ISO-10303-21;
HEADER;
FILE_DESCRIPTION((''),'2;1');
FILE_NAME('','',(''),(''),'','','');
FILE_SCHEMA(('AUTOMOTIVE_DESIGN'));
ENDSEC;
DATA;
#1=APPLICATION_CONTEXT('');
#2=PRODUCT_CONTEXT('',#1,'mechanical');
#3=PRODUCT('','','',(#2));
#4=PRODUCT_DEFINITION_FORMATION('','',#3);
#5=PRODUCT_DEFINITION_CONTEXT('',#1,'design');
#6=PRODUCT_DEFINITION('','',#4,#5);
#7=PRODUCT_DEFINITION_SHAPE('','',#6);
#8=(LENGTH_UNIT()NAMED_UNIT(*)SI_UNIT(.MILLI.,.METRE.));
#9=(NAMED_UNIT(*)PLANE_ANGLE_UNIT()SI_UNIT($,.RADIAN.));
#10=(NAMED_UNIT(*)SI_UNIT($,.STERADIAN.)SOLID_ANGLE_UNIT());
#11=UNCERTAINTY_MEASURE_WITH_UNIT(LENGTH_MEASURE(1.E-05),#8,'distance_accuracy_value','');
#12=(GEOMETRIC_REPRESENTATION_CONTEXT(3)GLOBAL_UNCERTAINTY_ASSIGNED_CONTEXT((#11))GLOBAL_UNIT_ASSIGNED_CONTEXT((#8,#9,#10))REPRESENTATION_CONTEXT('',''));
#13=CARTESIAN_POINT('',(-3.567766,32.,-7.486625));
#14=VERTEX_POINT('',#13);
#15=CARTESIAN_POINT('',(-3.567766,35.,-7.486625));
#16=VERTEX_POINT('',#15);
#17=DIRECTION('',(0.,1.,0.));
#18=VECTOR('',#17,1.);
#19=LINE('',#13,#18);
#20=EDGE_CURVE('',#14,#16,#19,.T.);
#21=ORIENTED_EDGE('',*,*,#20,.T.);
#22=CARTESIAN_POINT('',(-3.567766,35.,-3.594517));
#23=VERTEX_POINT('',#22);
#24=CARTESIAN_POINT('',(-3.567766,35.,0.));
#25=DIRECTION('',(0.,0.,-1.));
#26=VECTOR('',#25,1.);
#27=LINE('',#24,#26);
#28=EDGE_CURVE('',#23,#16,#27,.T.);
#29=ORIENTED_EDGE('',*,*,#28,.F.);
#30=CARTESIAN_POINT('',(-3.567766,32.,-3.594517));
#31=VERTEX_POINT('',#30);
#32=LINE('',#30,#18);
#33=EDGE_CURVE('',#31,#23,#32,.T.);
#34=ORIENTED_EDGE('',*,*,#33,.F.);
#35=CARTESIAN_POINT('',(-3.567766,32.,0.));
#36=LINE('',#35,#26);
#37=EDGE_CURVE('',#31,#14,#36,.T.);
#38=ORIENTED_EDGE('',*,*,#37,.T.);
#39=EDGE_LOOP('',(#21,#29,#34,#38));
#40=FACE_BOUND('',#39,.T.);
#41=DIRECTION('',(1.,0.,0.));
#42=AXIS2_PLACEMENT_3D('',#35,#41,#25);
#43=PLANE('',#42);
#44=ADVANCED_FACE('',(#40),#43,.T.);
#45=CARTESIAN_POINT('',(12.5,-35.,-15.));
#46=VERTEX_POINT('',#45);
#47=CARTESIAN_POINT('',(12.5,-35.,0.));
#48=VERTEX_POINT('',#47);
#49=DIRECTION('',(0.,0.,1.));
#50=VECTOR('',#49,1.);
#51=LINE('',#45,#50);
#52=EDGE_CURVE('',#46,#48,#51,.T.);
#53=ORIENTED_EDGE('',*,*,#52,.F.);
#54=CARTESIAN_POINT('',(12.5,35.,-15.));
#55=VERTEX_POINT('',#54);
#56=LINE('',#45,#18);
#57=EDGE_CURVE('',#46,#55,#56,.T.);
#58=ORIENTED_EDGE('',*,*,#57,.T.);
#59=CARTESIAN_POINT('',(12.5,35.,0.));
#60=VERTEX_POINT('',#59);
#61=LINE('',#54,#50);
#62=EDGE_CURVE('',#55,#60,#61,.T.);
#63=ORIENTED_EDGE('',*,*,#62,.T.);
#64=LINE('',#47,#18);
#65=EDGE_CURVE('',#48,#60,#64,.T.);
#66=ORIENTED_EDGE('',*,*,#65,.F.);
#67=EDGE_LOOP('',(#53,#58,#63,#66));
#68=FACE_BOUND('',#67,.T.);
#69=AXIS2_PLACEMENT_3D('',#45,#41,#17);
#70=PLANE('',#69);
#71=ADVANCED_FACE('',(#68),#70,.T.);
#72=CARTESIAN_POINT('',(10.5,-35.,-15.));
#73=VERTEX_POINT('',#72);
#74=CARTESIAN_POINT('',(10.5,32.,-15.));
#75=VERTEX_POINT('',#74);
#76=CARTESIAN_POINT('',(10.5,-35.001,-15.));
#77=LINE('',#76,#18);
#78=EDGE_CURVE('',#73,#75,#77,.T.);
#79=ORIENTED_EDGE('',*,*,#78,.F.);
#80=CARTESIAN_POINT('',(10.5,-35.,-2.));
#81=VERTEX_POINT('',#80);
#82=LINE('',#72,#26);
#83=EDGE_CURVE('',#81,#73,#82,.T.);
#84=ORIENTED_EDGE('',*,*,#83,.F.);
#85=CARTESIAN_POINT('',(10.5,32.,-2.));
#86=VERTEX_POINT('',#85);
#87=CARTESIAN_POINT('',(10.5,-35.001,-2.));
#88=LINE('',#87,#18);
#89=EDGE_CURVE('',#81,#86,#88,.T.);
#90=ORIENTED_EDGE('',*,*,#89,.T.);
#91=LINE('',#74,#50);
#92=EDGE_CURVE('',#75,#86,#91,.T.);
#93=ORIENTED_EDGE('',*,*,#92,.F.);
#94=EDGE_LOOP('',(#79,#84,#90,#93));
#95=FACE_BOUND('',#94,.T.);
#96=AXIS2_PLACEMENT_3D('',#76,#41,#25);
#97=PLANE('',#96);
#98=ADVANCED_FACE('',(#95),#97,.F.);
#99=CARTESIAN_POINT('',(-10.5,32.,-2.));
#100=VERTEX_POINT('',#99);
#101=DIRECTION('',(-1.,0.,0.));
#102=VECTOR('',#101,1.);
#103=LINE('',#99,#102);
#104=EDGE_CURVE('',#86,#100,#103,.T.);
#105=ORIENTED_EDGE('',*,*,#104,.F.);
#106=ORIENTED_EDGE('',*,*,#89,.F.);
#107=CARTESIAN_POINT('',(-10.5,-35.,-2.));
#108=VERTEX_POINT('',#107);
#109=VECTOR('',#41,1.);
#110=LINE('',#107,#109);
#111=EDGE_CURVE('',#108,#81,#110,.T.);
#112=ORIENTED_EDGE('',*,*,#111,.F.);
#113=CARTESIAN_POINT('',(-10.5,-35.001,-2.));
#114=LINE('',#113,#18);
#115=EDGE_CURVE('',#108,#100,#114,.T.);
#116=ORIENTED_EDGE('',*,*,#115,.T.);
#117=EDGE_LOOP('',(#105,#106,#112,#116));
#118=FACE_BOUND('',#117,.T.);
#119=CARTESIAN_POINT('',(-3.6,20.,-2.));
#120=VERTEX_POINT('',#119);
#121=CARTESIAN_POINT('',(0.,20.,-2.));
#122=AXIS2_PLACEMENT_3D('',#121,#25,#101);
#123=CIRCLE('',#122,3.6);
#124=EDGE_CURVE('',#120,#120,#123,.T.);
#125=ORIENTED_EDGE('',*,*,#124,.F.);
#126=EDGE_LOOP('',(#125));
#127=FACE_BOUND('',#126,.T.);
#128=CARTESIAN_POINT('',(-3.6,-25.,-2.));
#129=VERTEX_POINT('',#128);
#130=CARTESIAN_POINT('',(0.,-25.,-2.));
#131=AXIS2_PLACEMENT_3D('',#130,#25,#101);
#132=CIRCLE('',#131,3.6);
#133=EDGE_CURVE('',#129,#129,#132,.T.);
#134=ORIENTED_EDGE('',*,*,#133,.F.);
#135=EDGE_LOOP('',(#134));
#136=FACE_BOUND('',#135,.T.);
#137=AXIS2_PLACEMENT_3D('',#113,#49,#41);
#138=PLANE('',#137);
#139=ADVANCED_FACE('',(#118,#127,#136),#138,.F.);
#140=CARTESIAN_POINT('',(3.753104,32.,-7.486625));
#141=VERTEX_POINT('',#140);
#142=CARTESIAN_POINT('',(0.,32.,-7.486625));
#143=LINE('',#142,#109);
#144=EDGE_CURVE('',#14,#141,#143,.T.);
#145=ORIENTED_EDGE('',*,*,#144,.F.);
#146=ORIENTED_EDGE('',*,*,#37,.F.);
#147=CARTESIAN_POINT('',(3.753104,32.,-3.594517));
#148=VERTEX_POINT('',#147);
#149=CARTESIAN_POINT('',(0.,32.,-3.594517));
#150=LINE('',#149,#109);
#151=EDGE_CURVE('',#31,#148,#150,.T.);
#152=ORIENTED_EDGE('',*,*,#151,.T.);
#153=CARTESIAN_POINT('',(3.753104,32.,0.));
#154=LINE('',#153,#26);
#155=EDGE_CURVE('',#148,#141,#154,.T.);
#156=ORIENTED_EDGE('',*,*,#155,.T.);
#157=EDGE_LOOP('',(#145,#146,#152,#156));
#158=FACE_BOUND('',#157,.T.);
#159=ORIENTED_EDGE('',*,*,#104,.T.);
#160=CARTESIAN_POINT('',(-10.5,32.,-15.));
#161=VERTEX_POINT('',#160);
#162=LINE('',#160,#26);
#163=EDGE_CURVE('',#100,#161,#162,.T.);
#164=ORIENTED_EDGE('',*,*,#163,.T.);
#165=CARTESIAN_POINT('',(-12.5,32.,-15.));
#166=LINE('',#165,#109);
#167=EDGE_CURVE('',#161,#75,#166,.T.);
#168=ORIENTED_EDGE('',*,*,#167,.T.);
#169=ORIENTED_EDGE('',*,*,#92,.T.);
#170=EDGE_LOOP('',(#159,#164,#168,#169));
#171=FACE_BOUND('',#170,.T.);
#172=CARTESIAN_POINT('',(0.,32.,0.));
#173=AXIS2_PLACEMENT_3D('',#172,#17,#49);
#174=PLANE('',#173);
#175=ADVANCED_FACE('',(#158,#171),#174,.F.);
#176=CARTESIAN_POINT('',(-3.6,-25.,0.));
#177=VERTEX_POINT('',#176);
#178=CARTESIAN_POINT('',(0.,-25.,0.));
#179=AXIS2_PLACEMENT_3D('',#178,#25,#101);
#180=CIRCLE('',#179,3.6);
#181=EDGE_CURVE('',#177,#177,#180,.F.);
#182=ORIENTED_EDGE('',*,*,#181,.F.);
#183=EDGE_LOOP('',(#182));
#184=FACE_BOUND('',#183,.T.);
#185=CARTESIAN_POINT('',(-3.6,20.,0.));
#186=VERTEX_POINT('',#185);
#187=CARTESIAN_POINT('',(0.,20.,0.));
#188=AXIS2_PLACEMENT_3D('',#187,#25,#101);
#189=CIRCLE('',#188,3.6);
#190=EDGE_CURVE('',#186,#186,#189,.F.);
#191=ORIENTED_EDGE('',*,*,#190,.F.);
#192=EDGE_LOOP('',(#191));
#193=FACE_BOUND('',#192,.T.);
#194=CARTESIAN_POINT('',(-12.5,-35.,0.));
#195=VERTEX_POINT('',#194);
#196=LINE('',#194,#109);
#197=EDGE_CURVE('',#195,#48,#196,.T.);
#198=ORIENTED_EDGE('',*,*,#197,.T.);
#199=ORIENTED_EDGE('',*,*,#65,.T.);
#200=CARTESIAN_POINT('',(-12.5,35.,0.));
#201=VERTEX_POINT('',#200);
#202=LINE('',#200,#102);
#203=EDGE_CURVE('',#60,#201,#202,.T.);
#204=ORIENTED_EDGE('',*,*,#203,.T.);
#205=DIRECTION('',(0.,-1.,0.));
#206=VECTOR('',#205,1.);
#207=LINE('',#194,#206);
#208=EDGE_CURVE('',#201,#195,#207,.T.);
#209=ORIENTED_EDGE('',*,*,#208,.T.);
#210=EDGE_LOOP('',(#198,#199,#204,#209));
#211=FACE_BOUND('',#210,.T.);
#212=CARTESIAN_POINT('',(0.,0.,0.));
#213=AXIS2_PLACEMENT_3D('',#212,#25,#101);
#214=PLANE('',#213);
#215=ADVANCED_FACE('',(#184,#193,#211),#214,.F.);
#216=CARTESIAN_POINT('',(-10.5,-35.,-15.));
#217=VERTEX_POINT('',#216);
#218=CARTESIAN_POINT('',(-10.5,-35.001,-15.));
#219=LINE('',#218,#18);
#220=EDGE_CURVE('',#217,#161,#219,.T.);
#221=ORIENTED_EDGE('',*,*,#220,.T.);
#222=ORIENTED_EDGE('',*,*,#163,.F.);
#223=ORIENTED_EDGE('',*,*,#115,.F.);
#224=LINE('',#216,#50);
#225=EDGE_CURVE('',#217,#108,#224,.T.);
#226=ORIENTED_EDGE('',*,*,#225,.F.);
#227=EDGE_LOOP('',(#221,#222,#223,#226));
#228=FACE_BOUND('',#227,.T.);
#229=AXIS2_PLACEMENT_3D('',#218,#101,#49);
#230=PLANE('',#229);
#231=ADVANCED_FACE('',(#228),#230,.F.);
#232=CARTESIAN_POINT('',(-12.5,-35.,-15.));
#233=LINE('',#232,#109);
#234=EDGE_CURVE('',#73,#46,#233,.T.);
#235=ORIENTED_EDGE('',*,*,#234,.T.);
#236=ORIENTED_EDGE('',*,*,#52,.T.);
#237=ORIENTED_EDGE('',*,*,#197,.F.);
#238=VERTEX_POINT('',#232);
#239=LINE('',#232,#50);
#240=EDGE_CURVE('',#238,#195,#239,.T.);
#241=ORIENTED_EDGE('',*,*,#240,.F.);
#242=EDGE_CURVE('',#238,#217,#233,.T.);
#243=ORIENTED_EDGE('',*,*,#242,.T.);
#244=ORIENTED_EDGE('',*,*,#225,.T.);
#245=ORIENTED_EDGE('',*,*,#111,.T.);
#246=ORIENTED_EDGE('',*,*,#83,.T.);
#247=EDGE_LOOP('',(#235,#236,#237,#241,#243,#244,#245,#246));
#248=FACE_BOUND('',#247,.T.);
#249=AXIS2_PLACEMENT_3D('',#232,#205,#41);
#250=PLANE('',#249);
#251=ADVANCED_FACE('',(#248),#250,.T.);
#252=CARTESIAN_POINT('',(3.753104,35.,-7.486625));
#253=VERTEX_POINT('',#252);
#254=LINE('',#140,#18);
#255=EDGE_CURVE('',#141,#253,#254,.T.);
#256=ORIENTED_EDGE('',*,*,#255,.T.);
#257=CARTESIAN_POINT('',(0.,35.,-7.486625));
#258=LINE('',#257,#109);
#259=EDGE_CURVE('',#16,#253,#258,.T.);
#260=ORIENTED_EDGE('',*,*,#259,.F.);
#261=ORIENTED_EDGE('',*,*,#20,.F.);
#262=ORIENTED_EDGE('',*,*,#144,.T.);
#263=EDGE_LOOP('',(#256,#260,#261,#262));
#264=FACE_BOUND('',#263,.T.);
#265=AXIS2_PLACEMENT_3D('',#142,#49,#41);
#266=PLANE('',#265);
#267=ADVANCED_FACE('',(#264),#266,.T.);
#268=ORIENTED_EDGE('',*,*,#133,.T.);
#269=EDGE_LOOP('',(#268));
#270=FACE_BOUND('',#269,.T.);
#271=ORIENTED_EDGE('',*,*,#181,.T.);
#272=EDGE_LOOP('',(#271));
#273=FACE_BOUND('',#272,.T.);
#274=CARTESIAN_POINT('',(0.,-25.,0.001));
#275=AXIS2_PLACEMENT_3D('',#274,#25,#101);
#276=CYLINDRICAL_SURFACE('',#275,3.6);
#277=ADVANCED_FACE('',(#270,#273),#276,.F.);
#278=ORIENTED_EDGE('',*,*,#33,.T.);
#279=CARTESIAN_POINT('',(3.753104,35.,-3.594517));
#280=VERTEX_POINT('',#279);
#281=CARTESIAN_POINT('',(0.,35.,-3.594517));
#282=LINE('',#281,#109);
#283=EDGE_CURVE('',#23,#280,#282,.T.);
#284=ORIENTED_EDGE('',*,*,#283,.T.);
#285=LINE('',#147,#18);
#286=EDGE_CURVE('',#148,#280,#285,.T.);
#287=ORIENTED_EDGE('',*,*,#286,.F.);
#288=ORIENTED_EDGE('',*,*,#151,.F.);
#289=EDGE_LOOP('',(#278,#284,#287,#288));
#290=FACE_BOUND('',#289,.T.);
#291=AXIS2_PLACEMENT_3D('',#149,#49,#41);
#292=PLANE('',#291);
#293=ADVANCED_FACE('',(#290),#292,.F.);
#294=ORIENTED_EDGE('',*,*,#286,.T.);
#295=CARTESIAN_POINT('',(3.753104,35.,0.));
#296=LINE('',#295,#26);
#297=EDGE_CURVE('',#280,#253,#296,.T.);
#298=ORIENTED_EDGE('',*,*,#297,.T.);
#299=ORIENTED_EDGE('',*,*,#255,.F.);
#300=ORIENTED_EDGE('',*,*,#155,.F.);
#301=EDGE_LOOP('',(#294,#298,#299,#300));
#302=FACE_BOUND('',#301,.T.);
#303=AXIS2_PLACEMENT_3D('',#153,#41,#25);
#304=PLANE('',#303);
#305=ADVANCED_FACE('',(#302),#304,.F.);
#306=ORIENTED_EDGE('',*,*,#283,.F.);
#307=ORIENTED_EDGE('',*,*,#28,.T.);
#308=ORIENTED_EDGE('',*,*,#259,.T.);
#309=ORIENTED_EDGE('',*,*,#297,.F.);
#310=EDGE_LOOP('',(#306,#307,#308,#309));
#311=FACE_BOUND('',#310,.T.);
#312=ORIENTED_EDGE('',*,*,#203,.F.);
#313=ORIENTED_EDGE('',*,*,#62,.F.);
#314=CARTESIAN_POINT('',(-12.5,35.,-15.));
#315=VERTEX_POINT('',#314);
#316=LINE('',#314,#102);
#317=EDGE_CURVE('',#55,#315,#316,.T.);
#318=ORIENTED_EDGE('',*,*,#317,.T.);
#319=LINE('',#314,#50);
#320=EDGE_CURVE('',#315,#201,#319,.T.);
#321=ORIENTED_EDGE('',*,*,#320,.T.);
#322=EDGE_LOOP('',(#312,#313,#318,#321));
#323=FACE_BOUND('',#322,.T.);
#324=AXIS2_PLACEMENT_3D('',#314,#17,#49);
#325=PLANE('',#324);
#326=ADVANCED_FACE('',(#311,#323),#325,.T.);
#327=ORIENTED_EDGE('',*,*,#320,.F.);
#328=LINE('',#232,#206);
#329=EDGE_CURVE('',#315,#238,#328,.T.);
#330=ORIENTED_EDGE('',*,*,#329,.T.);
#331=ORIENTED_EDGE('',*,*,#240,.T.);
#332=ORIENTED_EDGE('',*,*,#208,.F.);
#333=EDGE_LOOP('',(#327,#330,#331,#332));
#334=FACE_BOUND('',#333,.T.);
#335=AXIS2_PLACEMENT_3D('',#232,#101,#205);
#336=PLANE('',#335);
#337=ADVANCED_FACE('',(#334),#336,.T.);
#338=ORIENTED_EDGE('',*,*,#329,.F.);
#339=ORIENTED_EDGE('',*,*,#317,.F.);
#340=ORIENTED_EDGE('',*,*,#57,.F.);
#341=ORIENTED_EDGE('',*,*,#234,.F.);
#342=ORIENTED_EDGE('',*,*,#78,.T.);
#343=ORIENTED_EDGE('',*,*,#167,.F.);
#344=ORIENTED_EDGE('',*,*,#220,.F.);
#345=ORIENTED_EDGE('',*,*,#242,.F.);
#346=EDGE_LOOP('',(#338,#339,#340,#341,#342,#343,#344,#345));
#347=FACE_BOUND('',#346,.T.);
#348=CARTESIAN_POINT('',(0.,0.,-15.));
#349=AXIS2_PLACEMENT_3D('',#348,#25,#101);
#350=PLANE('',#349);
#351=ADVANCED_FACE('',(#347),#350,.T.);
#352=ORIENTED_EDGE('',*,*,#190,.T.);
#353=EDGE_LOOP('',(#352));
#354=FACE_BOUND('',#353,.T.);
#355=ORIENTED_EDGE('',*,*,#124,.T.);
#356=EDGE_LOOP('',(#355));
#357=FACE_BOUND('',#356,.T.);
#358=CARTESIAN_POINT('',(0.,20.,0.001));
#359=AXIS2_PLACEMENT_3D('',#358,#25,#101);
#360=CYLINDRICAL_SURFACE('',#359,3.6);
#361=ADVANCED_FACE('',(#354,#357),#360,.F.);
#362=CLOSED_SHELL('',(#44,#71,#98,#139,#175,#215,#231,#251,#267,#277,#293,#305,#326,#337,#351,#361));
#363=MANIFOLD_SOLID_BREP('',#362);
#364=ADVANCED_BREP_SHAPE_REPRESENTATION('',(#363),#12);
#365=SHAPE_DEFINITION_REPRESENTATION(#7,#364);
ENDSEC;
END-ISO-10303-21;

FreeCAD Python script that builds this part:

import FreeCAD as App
import Part
import Sketcher

V = App.Vector

doc = App.newDocument("Part")
body = doc.addObject("PartDesign::Body", "Body")

# Sketch on XY plane
sketch1 = body.newObject("Sketcher::SketchObject", "Sketch")
sketch1.AttachmentSupport = (doc.getObject("XY_Plane"), [""])
sketch1.MapMode = "FlatFace"
sketch1.addGeometry([
    Part.LineSegment(V(-12.5, 35, 0), V(-12.5, -35, 0)),
    Part.LineSegment(V(-12.5, -35, 0), V(12.5, -35, 0)),
    Part.LineSegment(V(12.5, -35, 0), V(12.5, 35, 0)),
    Part.LineSegment(V(12.5, 35, 0), V(-12.5, 35, 0)),
], False)
sketch1.addConstraint([
    Sketcher.Constraint("Coincident", 0, 2, 1, 1),
    Sketcher.Constraint("Coincident", 1, 2, 2, 1),
    Sketcher.Constraint("Coincident", 2, 2, 3, 1),
    Sketcher.Constraint("Coincident", 3, 2, 0, 1),
    Sketcher.Constraint("Vertical", 0),
    Sketcher.Constraint("Horizontal", 1),
    Sketcher.Constraint("Vertical", 2),
    Sketcher.Constraint("Horizontal", 3),
    Sketcher.Constraint("Symmetric", 0, 2, 2, 2, -1, 1),
    Sketcher.Constraint("DistanceX", 1, 1, 1, 2, 25.0),
    Sketcher.Constraint("DistanceY", 0, 2, 0, 1, 70.0),
])
pad1 = body.newObject("PartDesign::Pad", "Pad")
pad1.Profile = sketch1
pad1.Length = 15
pad1.Reversed = True

# Sketch on XZ plane
sketch2 = body.newObject("Sketcher::SketchObject", "Sketch001")
sketch2.AttachmentSupport = (doc.getObject("XZ_Plane"), [""])
sketch2.MapMode = "FlatFace"
sketch2.AttachmentOffset = App.Placement(V(0, 0, -35), App.Rotation())
sketch2.addGeometry([
    Part.LineSegment(V(-10.5, -15, 0), V(-10.5, -2, 0)),
    Part.LineSegment(V(-10.5, -2, 0), V(10.5, -2, 0)),
    Part.LineSegment(V(10.5, -2, 0), V(10.5, -15, 0)),
    Part.LineSegment(V(10.5, -15, 0), V(-10.5, -15, 0)),
], False)
sketch2.addConstraint([
    Sketcher.Constraint("Coincident", 0, 2, 1, 1),
    Sketcher.Constraint("Coincident", 1, 2, 2, 1),
    Sketcher.Constraint("Coincident", 2, 2, 3, 1),
    Sketcher.Constraint("Coincident", 3, 2, 0, 1),
    Sketcher.Constraint("Vertical", 0),
    Sketcher.Constraint("Horizontal", 1),
    Sketcher.Constraint("Vertical", 2),
    Sketcher.Constraint("Horizontal", 3),
    Sketcher.Constraint("DistanceX", 1, 1, 1, 2, 21.0),
    Sketcher.Constraint("DistanceY", 0, 1, 0, 2, 13.0),
    Sketcher.Constraint("DistanceY", 0, 2, -1, 1, 2.0),
    Sketcher.Constraint("DistanceX", 0, 2, -1, 1, 10.5),
])
pocket1 = body.newObject("PartDesign::Pocket", "Pocket")
pocket1.Profile = sketch2
pocket1.Type = "UpToFirst"
pocket1.Reversed = True

# Sketch on XZ plane
sketch3 = body.newObject("Sketcher::SketchObject", "Sketch002")
sketch3.AttachmentSupport = (doc.getObject("XZ_Plane"), [""])
sketch3.MapMode = "FlatFace"
sketch3.AttachmentOffset = App.Placement(V(0, 0, -35), App.Rotation())
sketch3.addGeometry([
    Part.LineSegment(V(-12.5, -15, 0), V(-12.5, 0, 0)),  # 0
    Part.LineSegment(V(-12.5, 0, 0), V(12.5, 0, 0)),  # 1
    Part.LineSegment(V(12.5, 0, 0), V(12.5, -15, 0)),  # 2
    Part.LineSegment(V(12.5, -15, 0), V(-12.5, -15, 0)),  # 3
    Part.LineSegment(V(3.753104, -3.594517, 0), V(-3.567766, -3.594517, 0)),  # 4
    Part.LineSegment(V(-3.567766, -3.594517, 0), V(-3.567766, -7.486625, 0)),  # 5
    Part.LineSegment(V(-3.567766, -7.486625, 0), V(3.753104, -7.486625, 0)),  # 6
    Part.LineSegment(V(3.753104, -7.486625, 0), V(3.753104, -3.594517, 0)),  # 7
], False)
sketch3.addConstraint([
    Sketcher.Constraint("Coincident", 0, 2, 1, 1),
    Sketcher.Constraint("Coincident", 1, 2, 2, 1),
    Sketcher.Constraint("Coincident", 2, 2, 3, 1),
    Sketcher.Constraint("Coincident", 3, 2, 0, 1),
    Sketcher.Constraint("Coincident", 4, 2, 5, 1),
    Sketcher.Constraint("Coincident", 5, 2, 6, 1),
    Sketcher.Constraint("Coincident", 6, 2, 7, 1),
    Sketcher.Constraint("Coincident", 7, 2, 4, 1),
    Sketcher.Constraint("Vertical", 0),
    Sketcher.Constraint("Horizontal", 1),
    Sketcher.Constraint("Vertical", 2),
    Sketcher.Constraint("Horizontal", 3),
    Sketcher.Constraint("Horizontal", 4),
    Sketcher.Constraint("Vertical", 5),
    Sketcher.Constraint("Horizontal", 6),
    Sketcher.Constraint("Vertical", 7),
    Sketcher.Constraint("Symmetric", 0, 2, 1, 2, -1, 1),
    Sketcher.Constraint("DistanceX", 1, 1, 1, 2, 25.0),
    Sketcher.Constraint("DistanceY", 0, 1, 0, 2, 15.0),
    Sketcher.Constraint("DistanceX", 4, 2, 4, 1, 7.32087),
    Sketcher.Constraint("DistanceY", 5, 2, 5, 1, 3.892108),
    Sketcher.Constraint("DistanceX", 4, 2, -1, 1, 3.567766),
    Sketcher.Constraint("DistanceY", 4, 2, -1, 1, 3.594517),
])
pad2 = body.newObject("PartDesign::Pad", "Pad001")
pad2.Profile = sketch3
pad2.Length = 3

# Sketch on XY plane
sketch4 = body.newObject("Sketcher::SketchObject", "Sketch003")
sketch4.AttachmentSupport = (doc.getObject("XY_Plane"), [""])
sketch4.MapMode = "FlatFace"
sketch4.AttachmentOffset = App.Placement(V(0, 0, -2), App.Rotation())
sketch4.addGeometry(Part.Circle(V(0, 20, 0), V(0, 0, 1), 3.6), False)
sketch4.addConstraint([
    Sketcher.Constraint("PointOnObject", 0, 3, -2),
    Sketcher.Constraint("Diameter", 0, 7.2),
    Sketcher.Constraint("DistanceY", -1, 1, 0, 3, 20.0),
])
pocket2 = body.newObject("PartDesign::Pocket", "Pocket001")
pocket2.Profile = sketch4
pocket2.Type = "UpToFirst"
pocket2.Reversed = True

# Sketch on XY plane
sketch5 = body.newObject("Sketcher::SketchObject", "Sketch004")
sketch5.AttachmentSupport = (doc.getObject("XY_Plane"), [""])
sketch5.MapMode = "FlatFace"
sketch5.AttachmentOffset = App.Placement(V(0, 0, -2), App.Rotation())
sketch5.addGeometry(Part.Circle(V(0, -25, 0), V(0, 0, 1), 3.6), False)
sketch5.addConstraint([
    Sketcher.Constraint("PointOnObject", 0, 3, -2),
    Sketcher.Constraint("Diameter", 0, 7.2),
    Sketcher.Constraint("DistanceY", 0, 3, -1, 1, 25.0),
])
pocket3 = body.newObject("PartDesign::Pocket", "Pocket002")
pocket3.Profile = sketch5
pocket3.Type = "UpToFirst"
pocket3.Reversed = True

doc.recompute()
